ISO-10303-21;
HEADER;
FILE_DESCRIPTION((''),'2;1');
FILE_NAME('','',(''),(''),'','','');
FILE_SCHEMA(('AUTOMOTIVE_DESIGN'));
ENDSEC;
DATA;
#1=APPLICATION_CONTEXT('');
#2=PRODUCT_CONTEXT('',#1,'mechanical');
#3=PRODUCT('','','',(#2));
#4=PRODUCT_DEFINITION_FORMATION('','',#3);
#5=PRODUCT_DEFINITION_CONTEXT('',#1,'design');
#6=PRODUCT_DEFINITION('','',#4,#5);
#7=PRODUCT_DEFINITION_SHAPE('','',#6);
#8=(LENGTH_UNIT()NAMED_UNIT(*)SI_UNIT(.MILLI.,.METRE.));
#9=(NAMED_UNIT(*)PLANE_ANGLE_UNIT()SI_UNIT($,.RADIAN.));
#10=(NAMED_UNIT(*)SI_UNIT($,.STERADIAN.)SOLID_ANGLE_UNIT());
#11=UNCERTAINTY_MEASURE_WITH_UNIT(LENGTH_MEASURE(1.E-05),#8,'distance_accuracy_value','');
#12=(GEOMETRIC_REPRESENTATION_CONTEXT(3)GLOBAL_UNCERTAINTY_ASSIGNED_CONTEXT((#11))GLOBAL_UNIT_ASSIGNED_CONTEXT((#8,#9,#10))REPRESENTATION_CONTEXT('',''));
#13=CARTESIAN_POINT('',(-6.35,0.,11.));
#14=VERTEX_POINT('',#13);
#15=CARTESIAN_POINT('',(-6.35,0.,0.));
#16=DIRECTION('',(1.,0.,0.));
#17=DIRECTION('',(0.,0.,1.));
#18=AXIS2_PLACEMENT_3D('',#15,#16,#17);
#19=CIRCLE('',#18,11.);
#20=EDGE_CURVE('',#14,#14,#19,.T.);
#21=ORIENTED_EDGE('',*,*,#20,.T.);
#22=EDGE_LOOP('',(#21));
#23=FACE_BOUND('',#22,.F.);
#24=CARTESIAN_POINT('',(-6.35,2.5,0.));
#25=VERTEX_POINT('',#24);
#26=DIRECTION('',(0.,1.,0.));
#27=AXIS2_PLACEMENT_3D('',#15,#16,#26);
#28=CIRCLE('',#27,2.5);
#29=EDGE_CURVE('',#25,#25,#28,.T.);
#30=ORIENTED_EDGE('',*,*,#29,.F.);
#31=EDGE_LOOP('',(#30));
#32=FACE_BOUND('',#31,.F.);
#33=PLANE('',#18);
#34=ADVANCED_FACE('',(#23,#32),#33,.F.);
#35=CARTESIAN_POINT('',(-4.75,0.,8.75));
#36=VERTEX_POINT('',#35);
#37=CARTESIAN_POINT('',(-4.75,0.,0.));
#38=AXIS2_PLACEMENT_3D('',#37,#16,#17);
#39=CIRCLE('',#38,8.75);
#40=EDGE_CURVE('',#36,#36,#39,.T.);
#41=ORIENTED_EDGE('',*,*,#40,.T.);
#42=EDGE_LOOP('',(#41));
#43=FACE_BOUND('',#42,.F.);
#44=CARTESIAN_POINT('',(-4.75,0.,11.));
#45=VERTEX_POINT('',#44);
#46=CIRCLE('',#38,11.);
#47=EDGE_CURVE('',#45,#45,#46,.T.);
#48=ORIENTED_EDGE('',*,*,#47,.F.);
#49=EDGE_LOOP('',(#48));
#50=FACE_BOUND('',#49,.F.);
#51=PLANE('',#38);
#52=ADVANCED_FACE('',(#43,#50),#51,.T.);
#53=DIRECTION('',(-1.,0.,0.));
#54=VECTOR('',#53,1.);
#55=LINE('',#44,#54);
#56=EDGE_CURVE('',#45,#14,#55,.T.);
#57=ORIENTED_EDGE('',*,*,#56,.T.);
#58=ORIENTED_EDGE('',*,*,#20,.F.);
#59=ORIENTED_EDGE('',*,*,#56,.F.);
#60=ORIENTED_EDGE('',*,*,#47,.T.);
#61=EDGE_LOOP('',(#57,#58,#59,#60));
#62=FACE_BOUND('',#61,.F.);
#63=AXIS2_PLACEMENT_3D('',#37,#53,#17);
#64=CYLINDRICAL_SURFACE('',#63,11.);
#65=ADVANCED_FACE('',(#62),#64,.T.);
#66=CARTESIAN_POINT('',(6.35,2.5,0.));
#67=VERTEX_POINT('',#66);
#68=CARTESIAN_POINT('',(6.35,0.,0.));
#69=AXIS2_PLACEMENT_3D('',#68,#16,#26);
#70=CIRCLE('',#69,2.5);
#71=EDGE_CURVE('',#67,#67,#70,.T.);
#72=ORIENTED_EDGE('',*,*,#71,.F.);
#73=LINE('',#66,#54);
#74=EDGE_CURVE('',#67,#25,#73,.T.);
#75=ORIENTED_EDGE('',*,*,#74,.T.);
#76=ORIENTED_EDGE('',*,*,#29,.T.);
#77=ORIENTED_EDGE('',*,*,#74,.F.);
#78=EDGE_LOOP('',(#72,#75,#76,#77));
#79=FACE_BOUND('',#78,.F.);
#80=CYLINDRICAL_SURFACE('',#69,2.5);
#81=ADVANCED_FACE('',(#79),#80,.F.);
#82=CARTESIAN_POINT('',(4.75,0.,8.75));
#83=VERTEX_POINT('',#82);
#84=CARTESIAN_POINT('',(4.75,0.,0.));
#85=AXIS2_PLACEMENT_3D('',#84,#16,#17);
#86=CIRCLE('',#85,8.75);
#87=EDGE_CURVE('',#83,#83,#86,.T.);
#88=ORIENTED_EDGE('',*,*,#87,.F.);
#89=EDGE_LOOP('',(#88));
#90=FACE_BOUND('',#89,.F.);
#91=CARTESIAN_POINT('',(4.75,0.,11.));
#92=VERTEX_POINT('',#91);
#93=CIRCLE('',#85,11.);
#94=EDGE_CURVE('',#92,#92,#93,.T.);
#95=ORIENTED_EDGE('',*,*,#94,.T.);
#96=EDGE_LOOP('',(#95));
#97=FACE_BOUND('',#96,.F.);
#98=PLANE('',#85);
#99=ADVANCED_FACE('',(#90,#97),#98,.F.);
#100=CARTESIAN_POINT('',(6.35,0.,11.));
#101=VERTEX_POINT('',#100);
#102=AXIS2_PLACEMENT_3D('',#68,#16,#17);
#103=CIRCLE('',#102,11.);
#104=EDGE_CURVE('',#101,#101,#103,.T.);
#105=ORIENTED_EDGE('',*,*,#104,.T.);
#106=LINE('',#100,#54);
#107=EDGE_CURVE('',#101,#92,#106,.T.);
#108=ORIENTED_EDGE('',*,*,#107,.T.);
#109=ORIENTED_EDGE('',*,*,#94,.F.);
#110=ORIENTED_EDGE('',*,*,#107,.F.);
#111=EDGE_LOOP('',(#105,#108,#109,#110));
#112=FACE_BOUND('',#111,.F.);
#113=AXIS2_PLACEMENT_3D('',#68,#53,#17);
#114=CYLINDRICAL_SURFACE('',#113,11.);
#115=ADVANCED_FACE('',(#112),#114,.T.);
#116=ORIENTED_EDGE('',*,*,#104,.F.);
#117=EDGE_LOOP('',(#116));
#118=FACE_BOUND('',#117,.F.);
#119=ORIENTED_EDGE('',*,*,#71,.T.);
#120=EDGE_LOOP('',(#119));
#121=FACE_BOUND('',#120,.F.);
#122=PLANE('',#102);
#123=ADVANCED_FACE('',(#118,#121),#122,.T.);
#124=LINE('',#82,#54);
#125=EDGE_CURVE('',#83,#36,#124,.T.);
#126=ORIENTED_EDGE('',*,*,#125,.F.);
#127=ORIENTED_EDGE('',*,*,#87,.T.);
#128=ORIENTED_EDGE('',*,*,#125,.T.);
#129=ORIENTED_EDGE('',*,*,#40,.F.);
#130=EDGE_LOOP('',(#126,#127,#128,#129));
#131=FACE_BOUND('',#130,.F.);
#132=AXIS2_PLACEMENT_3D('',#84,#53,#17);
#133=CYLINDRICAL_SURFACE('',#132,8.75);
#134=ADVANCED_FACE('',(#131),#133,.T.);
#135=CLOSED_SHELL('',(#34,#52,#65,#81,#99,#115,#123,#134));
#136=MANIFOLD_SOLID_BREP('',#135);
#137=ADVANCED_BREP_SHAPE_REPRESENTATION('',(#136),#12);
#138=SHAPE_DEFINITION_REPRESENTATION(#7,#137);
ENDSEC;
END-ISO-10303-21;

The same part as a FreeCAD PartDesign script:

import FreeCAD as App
import Part
import Sketcher
Q = App.Units.Quantity

doc = App.newDocument("Part")
body = doc.addObject("PartDesign::Body", "Body")

# Sketch on XZ plane
sketch1 = body.newObject("Sketcher::SketchObject", "Sketch")
sketch1.AttachmentSupport = (doc.getObject("XZ_Plane"), [""])
sketch1.MapMode = "FlatFace"
sketch1.addGeometry(Part.LineSegment(App.Vector(-6.35, 11, 0), App.Vector(-6.35, 0, 0)), False)
sketch1.addGeometry(Part.LineSegment(App.Vector(-6.35, 0, 0), App.Vector(6.35, 0, 0)), False)
sketch1.addGeometry(Part.LineSegment(App.Vector(6.35, 0, 0), App.Vector(6.35, 11, 0)), False)
sketch1.addGeometry(Part.LineSegment(App.Vector(6.35, 11, 0), App.Vector(4.75, 11, 0)), False)
sketch1.addGeometry(Part.LineSegment(App.Vector(4.75, 11, 0), App.Vector(4.75, 8.75, 0)), False)
sketch1.addGeometry(Part.LineSegment(App.Vector(4.75, 8.75, 0), App.Vector(-4.75, 8.75, 0)), False)
sketch1.addGeometry(Part.LineSegment(App.Vector(-4.75, 8.75, 0), App.Vector(-4.75, 11, 0)), False)
sketch1.addGeometry(Part.LineSegment(App.Vector(-4.75, 11, 0), App.Vector(-6.35, 11, 0)), False)
sketch1.addConstraint(Sketcher.Constraint("Coincident", 0, 2, 1, 1))
sketch1.addConstraint(Sketcher.Constraint("Coincident", 1, 2, 2, 1))
sketch1.addConstraint(Sketcher.Constraint("Coincident", 2, 2, 3, 1))
sketch1.addConstraint(Sketcher.Constraint("Coincident", 3, 2, 4, 1))
sketch1.addConstraint(Sketcher.Constraint("Coincident", 4, 2, 5, 1))
sketch1.addConstraint(Sketcher.Constraint("Coincident", 5, 2, 6, 1))
sketch1.addConstraint(Sketcher.Constraint("Coincident", 6, 2, 7, 1))
sketch1.addConstraint(Sketcher.Constraint("Coincident", 7, 2, 0, 1))
sketch1.addConstraint(Sketcher.Constraint("Vertical", 0))
sketch1.addConstraint(Sketcher.Constraint("Horizontal", 1))
sketch1.addConstraint(Sketcher.Constraint("Vertical", 2))
sketch1.addConstraint(Sketcher.Constraint("Horizontal", 3))
sketch1.addConstraint(Sketcher.Constraint("Vertical", 4))
sketch1.addConstraint(Sketcher.Constraint("Horizontal", 5))
sketch1.addConstraint(Sketcher.Constraint("Vertical", 6))
sketch1.addConstraint(Sketcher.Constraint("Horizontal", 7))
sketch1.addConstraint(Sketcher.Constraint("Symmetric", 0, 2, 1, 2, -1, 1))
sketch1.addConstraint(Sketcher.Constraint("Symmetric", 3, 2, 6, 2, -2))
sketch1.addConstraint(Sketcher.Constraint("DistanceY", 0, 2, 0, 1, Q("11 mm")))
sketch1.addConstraint(Sketcher.Constraint("DistanceX", 1, 1, 1, 2, Q("12.7 mm")))
sketch1.addConstraint(Sketcher.Constraint("DistanceX", 3, 2, 3, 1, Q("1.6 mm")))
sketch1.addConstraint(Sketcher.Constraint("DistanceY", 4, 2, 4, 1, Q("2.25 mm")))
revolution = body.newObject("PartDesign::Revolution", "Revolution")
revolution.Profile = sketch1
revolution.ReferenceAxis = (sketch1, ["H_Axis"])
revolution.Angle = 360

# Sketch on YZ plane
sketch2 = body.newObject("Sketcher::SketchObject", "Sketch001")
sketch2.AttachmentSupport = (doc.getObject("YZ_Plane"), [""])
sketch2.MapMode = "FlatFace"
sketch2.AttachmentOffset = App.Placement(App.Vector(0, 0, 6.35), App.Rotation())
sketch2.addGeometry(Part.Circle(App.Vector(0, 0, 0), App.Vector(0, 0, 1), 2.5), False)
sketch2.addConstraint(Sketcher.Constraint("Coincident", 0, 3, -1, 1))
sketch2.addConstraint(Sketcher.Constraint("Diameter", 0, Q("5 mm")))
pocket1 = body.newObject("PartDesign::Pocket", "Pocket")
pocket1.Profile = sketch2
pocket1.Type = "ThroughAll"

doc.recompute()
